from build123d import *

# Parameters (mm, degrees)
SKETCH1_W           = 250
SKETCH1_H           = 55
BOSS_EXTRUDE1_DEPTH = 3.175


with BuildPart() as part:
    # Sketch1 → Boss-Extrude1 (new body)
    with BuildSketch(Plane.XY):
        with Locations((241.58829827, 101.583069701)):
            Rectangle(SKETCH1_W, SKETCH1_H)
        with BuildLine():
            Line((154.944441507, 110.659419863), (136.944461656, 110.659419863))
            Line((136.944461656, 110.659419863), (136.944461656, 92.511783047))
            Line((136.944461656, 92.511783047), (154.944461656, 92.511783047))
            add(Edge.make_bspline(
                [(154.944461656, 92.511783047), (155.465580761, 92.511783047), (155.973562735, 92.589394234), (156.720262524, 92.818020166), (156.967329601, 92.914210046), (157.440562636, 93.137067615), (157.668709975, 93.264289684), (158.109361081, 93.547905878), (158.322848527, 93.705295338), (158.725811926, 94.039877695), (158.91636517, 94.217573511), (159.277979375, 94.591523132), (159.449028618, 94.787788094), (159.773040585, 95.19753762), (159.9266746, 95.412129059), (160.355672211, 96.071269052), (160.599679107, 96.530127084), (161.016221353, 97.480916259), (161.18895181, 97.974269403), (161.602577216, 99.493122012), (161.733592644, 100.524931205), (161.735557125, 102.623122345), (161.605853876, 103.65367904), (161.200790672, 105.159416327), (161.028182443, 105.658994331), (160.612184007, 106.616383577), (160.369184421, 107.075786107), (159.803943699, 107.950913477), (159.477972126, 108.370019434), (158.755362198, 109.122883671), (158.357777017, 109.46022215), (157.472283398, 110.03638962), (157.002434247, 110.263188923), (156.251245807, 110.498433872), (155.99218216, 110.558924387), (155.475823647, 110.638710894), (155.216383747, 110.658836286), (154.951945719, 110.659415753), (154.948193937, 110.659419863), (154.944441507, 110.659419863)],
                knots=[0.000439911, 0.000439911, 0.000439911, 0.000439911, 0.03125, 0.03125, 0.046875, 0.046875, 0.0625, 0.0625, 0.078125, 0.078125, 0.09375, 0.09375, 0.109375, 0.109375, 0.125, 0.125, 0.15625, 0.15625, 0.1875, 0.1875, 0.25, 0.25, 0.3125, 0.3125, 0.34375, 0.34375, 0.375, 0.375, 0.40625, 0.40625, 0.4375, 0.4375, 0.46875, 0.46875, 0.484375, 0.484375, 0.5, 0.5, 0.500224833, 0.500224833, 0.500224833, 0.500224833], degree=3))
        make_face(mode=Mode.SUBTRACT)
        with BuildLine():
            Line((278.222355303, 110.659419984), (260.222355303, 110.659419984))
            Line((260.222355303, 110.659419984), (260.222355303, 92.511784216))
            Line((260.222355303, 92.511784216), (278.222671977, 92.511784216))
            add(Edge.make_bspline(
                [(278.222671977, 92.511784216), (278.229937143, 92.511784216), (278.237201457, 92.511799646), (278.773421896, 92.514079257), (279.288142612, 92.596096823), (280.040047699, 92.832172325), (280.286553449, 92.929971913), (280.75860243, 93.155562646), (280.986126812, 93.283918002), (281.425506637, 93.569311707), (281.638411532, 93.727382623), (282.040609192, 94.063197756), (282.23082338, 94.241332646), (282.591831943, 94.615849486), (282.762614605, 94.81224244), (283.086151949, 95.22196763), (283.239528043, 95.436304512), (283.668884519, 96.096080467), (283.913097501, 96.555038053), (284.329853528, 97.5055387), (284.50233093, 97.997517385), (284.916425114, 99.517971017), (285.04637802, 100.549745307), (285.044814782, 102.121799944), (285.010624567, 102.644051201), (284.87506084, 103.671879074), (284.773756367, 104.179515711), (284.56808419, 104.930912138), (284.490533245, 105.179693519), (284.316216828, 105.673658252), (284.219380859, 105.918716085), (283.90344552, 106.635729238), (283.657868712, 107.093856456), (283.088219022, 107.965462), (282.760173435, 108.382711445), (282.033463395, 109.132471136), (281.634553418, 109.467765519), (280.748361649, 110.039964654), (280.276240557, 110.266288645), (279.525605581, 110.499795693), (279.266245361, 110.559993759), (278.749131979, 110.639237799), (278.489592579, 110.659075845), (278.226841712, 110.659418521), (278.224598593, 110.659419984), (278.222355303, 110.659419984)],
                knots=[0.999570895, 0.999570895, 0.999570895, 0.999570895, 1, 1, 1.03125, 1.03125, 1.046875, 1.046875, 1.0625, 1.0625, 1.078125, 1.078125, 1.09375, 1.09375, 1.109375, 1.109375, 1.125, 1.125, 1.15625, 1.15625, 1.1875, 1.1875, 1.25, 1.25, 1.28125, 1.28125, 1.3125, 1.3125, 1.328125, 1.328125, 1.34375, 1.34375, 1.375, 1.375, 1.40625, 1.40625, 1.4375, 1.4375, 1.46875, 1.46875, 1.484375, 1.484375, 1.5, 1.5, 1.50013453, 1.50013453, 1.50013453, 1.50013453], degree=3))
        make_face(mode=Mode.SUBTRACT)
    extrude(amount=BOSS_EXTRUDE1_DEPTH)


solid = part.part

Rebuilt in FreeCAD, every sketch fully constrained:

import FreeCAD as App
import Part
import Sketcher

V = App.Vector

doc = App.newDocument("Part")
body = doc.addObject("PartDesign::Body", "Body")

sketch1 = body.newObject("Sketcher::SketchObject", "Sketch")
sketch1.AttachmentSupport = (doc.getObject("XY_Plane"), [""])
sketch1.MapMode = "FlatFace"
sketch1.addGeometry([
    Part.LineSegment(V(116.588298, 129.08307, 0), V(116.588298, 74.08307, 0)),
    Part.LineSegment(V(116.588298, 74.08307, 0), V(366.588298, 74.08307, 0)),
    Part.LineSegment(V(366.588298, 74.08307, 0), V(366.588298, 129.08307, 0)),
    Part.LineSegment(V(366.588298, 129.08307, 0), V(116.588298, 129.08307, 0)),
    Part.LineSegment(V(136.944462, 110.65942, 0), V(154.944442, 110.65942, 0)),
    Part.BSplineCurve([V(154.944462, 92.511783, 0), V(155.465581, 92.511783, 0), V(155.973563, 92.589394, 0), V(156.720263, 92.81802, 0), V(156.96733, 92.91421, 0), V(157.440563, 93.137068, 0), V(157.66871, 93.26429, 0), V(158.109361, 93.547906, 0), V(158.322849, 93.705295, 0), V(158.725812, 94.039878, 0), V(158.916365, 94.217574, 0), V(159.277979, 94.591523, 0), V(159.449029, 94.787788, 0), V(159.773041, 95.197538, 0), V(159.926675, 95.412129, 0), V(160.355672, 96.071269, 0), V(160.599679, 96.530127, 0), V(161.016221, 97.480916, 0), V(161.188952, 97.974269, 0), V(161.602577, 99.493122, 0), V(161.733593, 100.524931, 0), V(161.735557, 102.623122, 0), V(161.605854, 103.653679, 0), V(161.200791, 105.159416, 0), V(161.028182, 105.658994, 0), V(160.612184, 106.616384, 0), V(160.369184, 107.075786, 0), V(159.803944, 107.950913, 0), V(159.477972, 108.370019, 0), V(158.755362, 109.122884, 0), V(158.357777, 109.460222, 0), V(157.472283, 110.03639, 0), V(157.002434, 110.263189, 0), V(156.251246, 110.498434, 0), V(155.992182, 110.558924, 0), V(155.475824, 110.638711, 0), V(155.216384, 110.658836, 0), V(154.951946, 110.659416, 0), V(154.948194, 110.65942, 0), V(154.944442, 110.65942, 0)], [4, 2, 2, 2, 2, 2, 2, 2, 2, 2, 2, 2, 2, 2, 2, 2, 2, 2, 2, 4], [0.000439911, 0.03125, 0.046875, 0.0625, 0.078125, 0.09375, 0.109375, 0.125, 0.15625, 0.1875, 0.25, 0.3125, 0.34375, 0.375, 0.40625, 0.4375, 0.46875, 0.484375, 0.5, 0.500224833], False, 3, [1, 1, 1, 1, 1, 1, 1, 1, 1, 1, 1, 1, 1, 1, 1, 1, 1, 1, 1, 1, 1, 1, 1, 1, 1, 1, 1, 1, 1, 1, 1, 1, 1, 1, 1, 1, 1, 1, 1, 1], False),
    Part.LineSegment(V(154.944462, 92.511783, 0), V(136.944462, 92.511783, 0)),
    Part.LineSegment(V(136.944462, 92.511783, 0), V(136.944462, 110.65942, 0)),
    Part.LineSegment(V(260.222355, 110.65942, 0), V(278.222355, 110.65942, 0)),
    Part.BSplineCurve([V(278.222672, 92.511784, 0), V(278.229937, 92.511784, 0), V(278.237201, 92.5118, 0), V(278.773422, 92.514079, 0), V(279.288143, 92.596097, 0), V(280.040048, 92.832172, 0), V(280.286553, 92.929972, 0), V(280.758602, 93.155563, 0), V(280.986127, 93.283918, 0), V(281.425507, 93.569312, 0), V(281.638412, 93.727383, 0), V(282.040609, 94.063198, 0), V(282.230823, 94.241333, 0), V(282.591832, 94.615849, 0), V(282.762615, 94.812242, 0), V(283.086152, 95.221968, 0), V(283.239528, 95.436305, 0), V(283.668885, 96.09608, 0), V(283.913098, 96.555038, 0), V(284.329854, 97.505539, 0), V(284.502331, 97.997517, 0), V(284.916425, 99.517971, 0), V(285.046378, 100.549745, 0), V(285.044815, 102.1218, 0), V(285.010625, 102.644051, 0), V(284.875061, 103.671879, 0), V(284.773756, 104.179516, 0), V(284.568084, 104.930912, 0), V(284.490533, 105.179694, 0), V(284.316217, 105.673658, 0), V(284.219381, 105.918716, 0), V(283.903446, 106.635729, 0), V(283.657869, 107.093856, 0), V(283.088219, 107.965462, 0), V(282.760173, 108.382711, 0), V(282.033463, 109.132471, 0), V(281.634553, 109.467766, 0), V(280.748362, 110.039965, 0), V(280.276241, 110.266289, 0), V(279.525606, 110.499796, 0), V(279.266245, 110.559994, 0), V(278.749132, 110.639238, 0), V(278.489593, 110.659076, 0), V(278.226842, 110.659419, 0), V(278.224599, 110.65942, 0), V(278.222355, 110.65942, 0)], [4, 2, 2, 2, 2, 2, 2, 2, 2, 2, 2, 2, 2, 2, 2, 2, 2, 2, 2, 2, 2, 2, 4], [0.999570895, 1, 1.03125, 1.046875, 1.0625, 1.078125, 1.09375, 1.109375, 1.125, 1.15625, 1.1875, 1.25, 1.28125, 1.3125, 1.328125, 1.34375, 1.375, 1.40625, 1.4375, 1.46875, 1.484375, 1.5, 1.50013453], False, 3, [1, 1, 1, 1, 1, 1, 1, 1, 1, 1, 1, 1, 1, 1, 1, 1, 1, 1, 1, 1, 1, 1, 1, 1, 1, 1, 1, 1, 1, 1, 1, 1, 1, 1, 1, 1, 1, 1, 1, 1, 1, 1, 1, 1, 1, 1], False),
    Part.LineSegment(V(278.222672, 92.511784, 0), V(260.222355, 92.511784, 0)),
    Part.LineSegment(V(260.222355, 92.511784, 0), V(260.222355, 110.65942, 0)),
], False)
sketch1.addConstraint([
    Sketcher.Constraint("Block", 5),
    Sketcher.Constraint("Block", 9),
    Sketcher.Constraint("Coincident", 0, 2, 1, 1),
    Sketcher.Constraint("Coincident", 1, 2, 2, 1),
    Sketcher.Constraint("Coincident", 2, 2, 3, 1),
    Sketcher.Constraint("Coincident", 3, 2, 0, 1),
    Sketcher.Constraint("Coincident", 4, 2, 5, 2),
    Sketcher.Constraint("Coincident", 5, 1, 6, 1),
    Sketcher.Constraint("Coincident", 6, 2, 7, 1),
    Sketcher.Constraint("Coincident", 7, 2, 4, 1),
    Sketcher.Constraint("Coincident", 8, 2, 9, 2),
    Sketcher.Constraint("Coincident", 9, 1, 10, 1),
    Sketcher.Constraint("Coincident", 10, 2, 11, 1),
    Sketcher.Constraint("Coincident", 11, 2, 8, 1),
    Sketcher.Constraint("Vertical", 0),
    Sketcher.Constraint("Horizontal", 1),
    Sketcher.Constraint("Vertical", 2),
    Sketcher.Constraint("Horizontal", 3),
    Sketcher.Constraint("Horizontal", 4),
    Sketcher.Constraint("Horizontal", 6),
    Sketcher.Constraint("Vertical", 7),
    Sketcher.Constraint("Horizontal", 8),
    Sketcher.Constraint("Horizontal", 10),
    Sketcher.Constraint("Vertical", 11),
    Sketcher.Constraint("Equal", 6, 8),
    Sketcher.Constraint("DistanceX", 1, 1, 1, 2, 250.0),
    Sketcher.Constraint("DistanceX", 6, 2, 6, 1, 18.0),
    Sketcher.Constraint("DistanceY", 0, 2, 0, 1, 55.0),
    Sketcher.Constraint("DistanceX", -1, 1, 0, 2, 116.588298),
    Sketcher.Constraint("DistanceY", -1, 1, 0, 2, 74.08307),
])
pad1 = body.newObject("PartDesign::Pad", "Pad")
pad1.Profile = sketch1
pad1.Length = 3.175

doc.recompute()
